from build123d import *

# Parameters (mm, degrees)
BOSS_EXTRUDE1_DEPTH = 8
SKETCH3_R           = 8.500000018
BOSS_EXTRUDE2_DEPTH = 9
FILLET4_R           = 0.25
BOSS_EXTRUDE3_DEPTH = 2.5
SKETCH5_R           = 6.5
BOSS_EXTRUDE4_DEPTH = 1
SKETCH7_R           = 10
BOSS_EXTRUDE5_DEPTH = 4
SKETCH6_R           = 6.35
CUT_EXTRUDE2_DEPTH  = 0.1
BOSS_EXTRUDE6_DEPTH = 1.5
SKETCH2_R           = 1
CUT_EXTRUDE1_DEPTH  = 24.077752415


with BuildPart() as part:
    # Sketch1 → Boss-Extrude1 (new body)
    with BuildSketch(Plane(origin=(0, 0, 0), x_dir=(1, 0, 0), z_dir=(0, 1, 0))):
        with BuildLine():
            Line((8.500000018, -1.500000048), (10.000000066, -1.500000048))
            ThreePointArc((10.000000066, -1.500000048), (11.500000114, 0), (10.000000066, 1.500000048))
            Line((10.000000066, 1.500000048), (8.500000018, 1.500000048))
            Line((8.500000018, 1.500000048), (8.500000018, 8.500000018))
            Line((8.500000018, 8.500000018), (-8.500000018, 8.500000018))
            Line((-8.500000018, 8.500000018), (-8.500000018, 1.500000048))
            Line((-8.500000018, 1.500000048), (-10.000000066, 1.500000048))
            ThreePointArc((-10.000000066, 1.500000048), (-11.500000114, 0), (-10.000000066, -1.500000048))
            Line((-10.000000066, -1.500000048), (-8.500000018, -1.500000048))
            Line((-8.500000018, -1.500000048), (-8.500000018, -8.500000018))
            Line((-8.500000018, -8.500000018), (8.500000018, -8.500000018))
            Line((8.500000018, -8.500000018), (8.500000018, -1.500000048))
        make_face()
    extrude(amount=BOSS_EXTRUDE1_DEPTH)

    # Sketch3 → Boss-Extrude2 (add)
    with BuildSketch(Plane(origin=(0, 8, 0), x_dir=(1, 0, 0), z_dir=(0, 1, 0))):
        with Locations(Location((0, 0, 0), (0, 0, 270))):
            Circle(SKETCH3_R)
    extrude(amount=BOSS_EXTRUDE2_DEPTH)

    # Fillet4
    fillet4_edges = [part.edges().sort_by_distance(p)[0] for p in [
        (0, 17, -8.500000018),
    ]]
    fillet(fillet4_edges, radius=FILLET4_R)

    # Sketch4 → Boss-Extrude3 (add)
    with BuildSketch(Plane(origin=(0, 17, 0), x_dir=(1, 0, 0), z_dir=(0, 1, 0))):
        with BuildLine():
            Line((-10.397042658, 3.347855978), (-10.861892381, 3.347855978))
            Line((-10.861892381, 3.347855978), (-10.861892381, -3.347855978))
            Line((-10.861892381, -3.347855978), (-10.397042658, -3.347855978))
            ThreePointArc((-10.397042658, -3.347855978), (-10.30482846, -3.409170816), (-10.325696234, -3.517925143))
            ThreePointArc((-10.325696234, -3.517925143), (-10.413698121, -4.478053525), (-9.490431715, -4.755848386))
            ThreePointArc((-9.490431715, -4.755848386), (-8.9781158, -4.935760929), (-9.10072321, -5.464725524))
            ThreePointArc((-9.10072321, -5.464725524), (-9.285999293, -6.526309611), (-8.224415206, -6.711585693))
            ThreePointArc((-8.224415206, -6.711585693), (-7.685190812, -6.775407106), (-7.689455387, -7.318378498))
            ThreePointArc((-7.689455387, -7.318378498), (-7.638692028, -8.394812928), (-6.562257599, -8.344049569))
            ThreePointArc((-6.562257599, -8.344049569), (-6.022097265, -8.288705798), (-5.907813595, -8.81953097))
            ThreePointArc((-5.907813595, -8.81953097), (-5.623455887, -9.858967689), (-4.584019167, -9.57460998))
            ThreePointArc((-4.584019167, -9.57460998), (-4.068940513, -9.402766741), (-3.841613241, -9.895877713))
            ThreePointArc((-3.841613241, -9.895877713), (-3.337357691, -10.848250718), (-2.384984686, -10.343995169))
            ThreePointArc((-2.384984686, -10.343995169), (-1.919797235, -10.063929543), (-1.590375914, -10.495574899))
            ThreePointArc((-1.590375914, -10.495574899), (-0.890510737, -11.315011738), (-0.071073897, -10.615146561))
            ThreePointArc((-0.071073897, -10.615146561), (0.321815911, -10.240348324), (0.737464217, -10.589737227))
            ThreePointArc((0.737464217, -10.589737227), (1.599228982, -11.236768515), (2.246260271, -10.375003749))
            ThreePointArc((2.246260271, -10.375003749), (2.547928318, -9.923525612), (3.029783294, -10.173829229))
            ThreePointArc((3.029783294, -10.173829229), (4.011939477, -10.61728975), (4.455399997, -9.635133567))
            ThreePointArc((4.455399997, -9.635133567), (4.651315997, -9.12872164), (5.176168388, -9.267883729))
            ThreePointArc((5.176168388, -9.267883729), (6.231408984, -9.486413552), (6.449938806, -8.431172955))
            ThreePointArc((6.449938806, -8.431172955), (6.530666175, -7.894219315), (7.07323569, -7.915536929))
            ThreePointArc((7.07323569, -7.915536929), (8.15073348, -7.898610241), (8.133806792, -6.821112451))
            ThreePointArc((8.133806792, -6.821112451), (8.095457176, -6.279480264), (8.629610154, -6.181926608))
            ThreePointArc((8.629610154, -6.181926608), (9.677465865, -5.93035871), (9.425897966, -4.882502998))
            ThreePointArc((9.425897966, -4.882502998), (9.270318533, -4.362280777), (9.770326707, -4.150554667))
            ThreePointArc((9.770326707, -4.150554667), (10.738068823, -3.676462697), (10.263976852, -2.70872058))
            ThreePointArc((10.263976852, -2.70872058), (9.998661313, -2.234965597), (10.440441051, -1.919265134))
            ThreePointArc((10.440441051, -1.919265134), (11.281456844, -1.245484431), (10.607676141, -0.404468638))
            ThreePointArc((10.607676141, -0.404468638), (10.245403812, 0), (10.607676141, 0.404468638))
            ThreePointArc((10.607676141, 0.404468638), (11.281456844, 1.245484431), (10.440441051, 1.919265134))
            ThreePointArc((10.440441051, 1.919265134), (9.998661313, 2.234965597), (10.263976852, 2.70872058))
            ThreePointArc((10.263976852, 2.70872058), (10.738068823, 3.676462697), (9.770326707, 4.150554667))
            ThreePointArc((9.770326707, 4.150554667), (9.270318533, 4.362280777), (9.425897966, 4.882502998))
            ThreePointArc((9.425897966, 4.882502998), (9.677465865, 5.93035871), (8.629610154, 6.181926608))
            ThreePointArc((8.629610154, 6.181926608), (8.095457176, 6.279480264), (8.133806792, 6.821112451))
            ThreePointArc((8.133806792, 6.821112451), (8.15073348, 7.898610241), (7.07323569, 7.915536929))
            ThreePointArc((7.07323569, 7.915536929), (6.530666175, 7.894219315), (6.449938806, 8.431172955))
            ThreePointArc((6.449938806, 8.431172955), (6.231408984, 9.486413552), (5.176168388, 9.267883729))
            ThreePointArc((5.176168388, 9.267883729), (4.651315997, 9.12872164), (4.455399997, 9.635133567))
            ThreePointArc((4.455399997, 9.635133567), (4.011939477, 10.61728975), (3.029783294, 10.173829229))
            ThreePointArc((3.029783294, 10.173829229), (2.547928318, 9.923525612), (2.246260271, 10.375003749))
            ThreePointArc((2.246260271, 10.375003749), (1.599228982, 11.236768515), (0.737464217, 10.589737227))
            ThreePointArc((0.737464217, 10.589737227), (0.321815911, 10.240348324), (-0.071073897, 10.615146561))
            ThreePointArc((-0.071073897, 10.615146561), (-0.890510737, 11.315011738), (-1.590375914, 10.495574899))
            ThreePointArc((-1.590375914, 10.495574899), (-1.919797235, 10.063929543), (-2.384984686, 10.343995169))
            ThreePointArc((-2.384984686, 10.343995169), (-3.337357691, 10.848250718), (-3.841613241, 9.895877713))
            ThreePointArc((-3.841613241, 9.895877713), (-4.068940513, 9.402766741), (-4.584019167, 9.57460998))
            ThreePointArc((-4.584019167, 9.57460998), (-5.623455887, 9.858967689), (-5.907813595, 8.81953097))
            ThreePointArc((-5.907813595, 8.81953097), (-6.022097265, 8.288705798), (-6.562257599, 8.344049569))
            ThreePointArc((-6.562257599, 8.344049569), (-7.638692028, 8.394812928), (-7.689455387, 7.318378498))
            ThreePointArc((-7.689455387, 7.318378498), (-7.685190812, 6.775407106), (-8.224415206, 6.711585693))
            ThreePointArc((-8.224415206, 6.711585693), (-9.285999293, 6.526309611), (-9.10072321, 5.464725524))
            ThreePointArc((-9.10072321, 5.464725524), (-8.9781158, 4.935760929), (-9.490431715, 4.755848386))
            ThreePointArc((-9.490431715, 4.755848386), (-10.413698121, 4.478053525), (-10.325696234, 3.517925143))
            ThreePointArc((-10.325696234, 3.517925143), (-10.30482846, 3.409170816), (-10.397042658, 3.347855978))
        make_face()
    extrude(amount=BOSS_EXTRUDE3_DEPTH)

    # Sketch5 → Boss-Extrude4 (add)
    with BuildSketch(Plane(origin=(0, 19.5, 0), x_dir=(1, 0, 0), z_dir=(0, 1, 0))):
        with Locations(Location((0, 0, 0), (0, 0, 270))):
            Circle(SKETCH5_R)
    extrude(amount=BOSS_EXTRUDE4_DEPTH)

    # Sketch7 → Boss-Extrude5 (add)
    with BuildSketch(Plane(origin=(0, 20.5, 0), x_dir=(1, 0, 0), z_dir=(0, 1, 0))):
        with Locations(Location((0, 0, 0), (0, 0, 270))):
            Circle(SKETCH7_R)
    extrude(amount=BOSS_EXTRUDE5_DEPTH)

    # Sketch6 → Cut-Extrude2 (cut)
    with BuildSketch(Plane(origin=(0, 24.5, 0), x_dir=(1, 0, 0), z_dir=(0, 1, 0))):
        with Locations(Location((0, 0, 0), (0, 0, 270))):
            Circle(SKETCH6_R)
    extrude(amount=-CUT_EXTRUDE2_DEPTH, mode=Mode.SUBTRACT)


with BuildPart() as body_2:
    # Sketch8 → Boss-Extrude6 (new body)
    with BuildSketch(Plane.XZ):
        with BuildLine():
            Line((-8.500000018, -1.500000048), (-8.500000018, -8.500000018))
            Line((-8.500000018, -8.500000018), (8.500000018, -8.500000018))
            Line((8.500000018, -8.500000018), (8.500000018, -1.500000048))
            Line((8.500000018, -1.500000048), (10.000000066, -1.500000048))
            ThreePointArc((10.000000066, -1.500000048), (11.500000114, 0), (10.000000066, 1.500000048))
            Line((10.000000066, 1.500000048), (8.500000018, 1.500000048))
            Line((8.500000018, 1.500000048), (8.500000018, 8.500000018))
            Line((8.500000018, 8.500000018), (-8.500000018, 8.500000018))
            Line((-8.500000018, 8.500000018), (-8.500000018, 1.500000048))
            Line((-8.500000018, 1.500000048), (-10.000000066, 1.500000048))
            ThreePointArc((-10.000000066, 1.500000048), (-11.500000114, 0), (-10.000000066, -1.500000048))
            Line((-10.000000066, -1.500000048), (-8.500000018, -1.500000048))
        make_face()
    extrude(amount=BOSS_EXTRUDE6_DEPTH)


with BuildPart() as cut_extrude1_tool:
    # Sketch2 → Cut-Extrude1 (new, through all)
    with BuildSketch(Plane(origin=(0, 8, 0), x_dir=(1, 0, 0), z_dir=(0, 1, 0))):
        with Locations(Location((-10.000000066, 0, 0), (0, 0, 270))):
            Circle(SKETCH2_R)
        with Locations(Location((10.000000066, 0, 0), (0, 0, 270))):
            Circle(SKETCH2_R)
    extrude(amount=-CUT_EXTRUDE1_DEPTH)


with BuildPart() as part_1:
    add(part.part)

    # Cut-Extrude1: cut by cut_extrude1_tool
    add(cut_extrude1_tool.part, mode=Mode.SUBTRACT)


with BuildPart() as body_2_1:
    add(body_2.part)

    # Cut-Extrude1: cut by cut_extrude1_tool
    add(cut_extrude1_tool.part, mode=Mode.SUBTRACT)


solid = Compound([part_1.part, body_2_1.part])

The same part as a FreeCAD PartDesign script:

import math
import FreeCAD as App
import Part
import Sketcher
from FreeCAD import Vector
Q = App.Units.Quantity


def edges_at(feature, points):
    """Names of the edges that pass closest to the given points."""
    edges = feature.Shape.Edges
    near = lambda p: min(range(len(edges)), key=lambda i: edges[i].distToShape(Part.Vertex(*p))[0])
    return sorted({f"Edge{near(p) + 1}" for p in points})

doc = App.newDocument("Part")
body = doc.addObject("PartDesign::Body", "Body")

sketch1 = body.newObject("Sketcher::SketchObject", "Sketch")
sketch1.AttachmentSupport = (doc.getObject("XZ_Plane"), [""])
sketch1.MapMode = "FlatFace"
sketch1.addGeometry(Part.LineSegment(Vector(8.5, 1.5, 0), Vector(10, 1.5, 0)), False)
sketch1.addGeometry(Part.ArcOfCircle(Part.Circle(Vector(10, 0, 0), Vector(0, 0, 1), 1.5), math.radians(-90), math.radians(90)), False)
sketch1.addGeometry(Part.LineSegment(Vector(10, -1.5, 0), Vector(8.5, -1.5, 0)), False)
sketch1.addGeometry(Part.LineSegment(Vector(8.5, -1.5, 0), Vector(8.5, -8.5, 0)), False)
sketch1.addGeometry(Part.LineSegment(Vector(8.5, -8.5, 0), Vector(-8.5, -8.5, 0)), False)
sketch1.addGeometry(Part.LineSegment(Vector(-8.5, -8.5, 0), Vector(-8.5, -1.5, 0)), False)
sketch1.addGeometry(Part.LineSegment(Vector(-8.5, -1.5, 0), Vector(-10, -1.5, 0)), False)
sketch1.addGeometry(Part.ArcOfCircle(Part.Circle(Vector(-10, 0, 0), Vector(0, 0, 1), 1.5), math.radians(90), math.radians(270)), False)
sketch1.addGeometry(Part.LineSegment(Vector(-10, 1.5, 0), Vector(-8.5, 1.5, 0)), False)
sketch1.addGeometry(Part.LineSegment(Vector(-8.5, 1.5, 0), Vector(-8.5, 8.5, 0)), False)
sketch1.addGeometry(Part.LineSegment(Vector(-8.5, 8.5, 0), Vector(8.5, 8.5, 0)), False)
sketch1.addGeometry(Part.LineSegment(Vector(8.5, 8.5, 0), Vector(8.5, 1.5, 0)), False)
sketch1.addConstraint(Sketcher.Constraint("Tangent", 0, 2, 1, 2))
sketch1.addConstraint(Sketcher.Constraint("Tangent", 1, 1, 2, 1))
sketch1.addConstraint(Sketcher.Constraint("Coincident", 2, 2, 3, 1))
sketch1.addConstraint(Sketcher.Constraint("Coincident", 3, 2, 4, 1))
sketch1.addConstraint(Sketcher.Constraint("Coincident", 4, 2, 5, 1))
sketch1.addConstraint(Sketcher.Constraint("Coincident", 5, 2, 6, 1))
sketch1.addConstraint(Sketcher.Constraint("Tangent", 6, 2, 7, 2))
sketch1.addConstraint(Sketcher.Constraint("Tangent", 7, 1, 8, 1))
sketch1.addConstraint(Sketcher.Constraint("Coincident", 8, 2, 9, 1))
sketch1.addConstraint(Sketcher.Constraint("Coincident", 9, 2, 10, 1))
sketch1.addConstraint(Sketcher.Constraint("Coincident", 10, 2, 11, 1))
sketch1.addConstraint(Sketcher.Constraint("Coincident", 11, 2, 0, 1))
sketch1.addConstraint(Sketcher.Constraint("Horizontal", 0))
sketch1.addConstraint(Sketcher.Constraint("Horizontal", 2))
sketch1.addConstraint(Sketcher.Constraint("Vertical", 3))
sketch1.addConstraint(Sketcher.Constraint("Horizontal", 4))
sketch1.addConstraint(Sketcher.Constraint("Vertical", 5))
sketch1.addConstraint(Sketcher.Constraint("Horizontal", 6))
sketch1.addConstraint(Sketcher.Constraint("Horizontal", 8))
sketch1.addConstraint(Sketcher.Constraint("Vertical", 9))
sketch1.addConstraint(Sketcher.Constraint("Horizontal", 10))
sketch1.addConstraint(Sketcher.Constraint("Vertical", 11))
sketch1.addConstraint(Sketcher.Constraint("Equal", 1, 7))
sketch1.addConstraint(Sketcher.Constraint("Symmetric", 1, 3, 7, 3, -1, 1))
sketch1.addConstraint(Sketcher.Constraint("Symmetric", 3, 2, 9, 2, -1, 1))
sketch1.addConstraint(Sketcher.Constraint("Symmetric", 2, 2, 5, 2, -2))
sketch1.addConstraint(Sketcher.Constraint("Vertical", 3, 2, 10, 2))
sketch1.addConstraint(Sketcher.Constraint("Radius", 1, Q("1.5 mm")))
sketch1.addConstraint(Sketcher.Constraint("DistanceX", 4, 2, 4, 1, Q("17 mm")))
sketch1.addConstraint(Sketcher.Constraint("DistanceY", 3, 2, 3, 1, Q("7 mm")))
sketch1.addConstraint(Sketcher.Constraint("DistanceX", 0, 1, 0, 2, Q("1.5 mm")))
pad1 = body.newObject("PartDesign::Pad", "Pad")
pad1.Profile = sketch1
pad1.Length = 8
pad1.Reversed = True

sketch2 = body.newObject("Sketcher::SketchObject", "Sketch001")
sketch2.AttachmentSupport = (doc.getObject("XZ_Plane"), [""])
sketch2.MapMode = "FlatFace"
sketch2.AttachmentOffset = App.Placement(Vector(0, 0, -8), App.Rotation())
sketch2.addGeometry(Part.Circle(Vector(0, 0, 0), Vector(0, 0, 1), 9), False)
sketch2.addConstraint(Sketcher.Constraint("Coincident", 0, 3, -1, 1))
sketch2.addConstraint(Sketcher.Constraint("Diameter", 0, Q("17 mm")))
pad2 = body.newObject("PartDesign::Pad", "Pad001")
pad2.Profile = sketch2
pad2.Length = 9
pad2.Reversed = True
doc.recompute()

fillet = body.newObject("PartDesign::Fillet", "Fillet")
fillet.Base = (pad2, edges_at(pad2, [(0, 17, -8.5)]))
fillet.Radius = 0.25

sketch3 = body.newObject("Sketcher::SketchObject", "Sketch002")
sketch3.AttachmentSupport = (doc.getObject("XZ_Plane"), [""])
sketch3.MapMode = "FlatFace"
sketch3.AttachmentOffset = App.Placement(Vector(0, 0, -17), App.Rotation())
sketch3.addGeometry(Part.LineSegment(Vector(-10.4, -3.35, 0), Vector(-10.86, -3.35, 0)), False)
sketch3.addGeometry(Part.LineSegment(Vector(-10.86, -3.35, 0), Vector(-10.86, 3.35, 0)), False)
sketch3.addGeometry(Part.LineSegment(Vector(-10.86, 3.35, 0), Vector(-10.4, 3.35, 0)), False)
sketch3.addGeometry(Part.ArcOfCircle(Part.Circle(Vector(-10.4, 3.45, 0), Vector(0, 0, 1), 0.1), math.radians(-90), math.radians(44)), False)
sketch3.addGeometry(Part.ArcOfCircle(Part.Circle(Vector(-9.78, 4.05, 0), Vector(0, 0, 1), 0.76), math.radians(67), math.radians(224)), False)
sketch3.addGeometry(Part.ArcOfCircle(Part.Circle(Vector(-9.33, 5.13, 0), Vector(0, 0, 1), 0.41), math.radians(-113), math.radians(55)), False)
sketch3.addGeometry(Part.ArcOfCircle(Part.Circle(Vector(-8.66, 6.09, 0), Vector(0, 0, 1), 0.76), math.radians(55), math.radians(235)), False)
sketch3.addGeometry(Part.ArcOfCircle(Part.Circle(Vector(-7.99, 7.04, 0), Vector(0, 0, 1), 0.41), math.radians(-125), math.radians(42)), False)
sketch3.addGeometry(Part.ArcOfCircle(Part.Circle(Vector(-7.13, 7.83, 0), Vector(0, 0, 1), 0.76), math.radians(42), math.radians(222)), False)
sketch3.addGeometry(Part.ArcOfCircle(Part.Circle(Vector(-6.26, 8.62, 0), Vector(0, 0, 1), 0.41), math.radians(-138), math.radians(30)), False)
sketch3.addGeometry(Part.ArcOfCircle(Part.Circle(Vector(-5.25, 9.2, 0), Vector(0, 0, 1), 0.76), math.radians(30), math.radians(210)), False)
sketch3.addGeometry(Part.ArcOfCircle(Part.Circle(Vector(-4.23, 9.78, 0), Vector(0, 0, 1), 0.41), math.radians(-150), math.radians(17)), False)
sketch3.addGeometry(Part.ArcOfCircle(Part.Circle(Vector(-3.11, 10.12, 0), Vector(0, 0, 1), 0.76), math.radians(17), math.radians(197)), False)
sketch3.addGeometry(Part.ArcOfCircle(Part.Circle(Vector(-2, 10.46, 0), Vector(0, 0, 1), 0.41), math.radians(-163), math.radians(5)), False)
sketch3.addGeometry(Part.ArcOfCircle(Part.Circle(Vector(-0.83, 10.56, 0), Vector(0, 0, 1), 0.76), math.radians(5), math.radians(185)), False)
sketch3.addGeometry(Part.ArcOfCircle(Part.Circle(Vector(0.33, 10.65, 0), Vector(0, 0, 1), 0.41), math.radians(-176), math.radians(-8)), False)
sketch3.addGeometry(Part.ArcOfCircle(Part.Circle(Vector(1.49, 10.48, 0), Vector(0, 0, 1), 0.76), math.radians(-8), math.radians(172)), False)
sketch3.addGeometry(Part.ArcOfCircle(Part.Circle(Vector(2.65, 10.32, 0), Vector(0, 0, 1), 0.41), math.radians(172), math.radians(339)), False)
sketch3.addGeometry(Part.ArcOfCircle(Part.Circle(Vector(3.74, 9.9, 0), Vector(0, 0, 1), 0.76), math.radians(-21), math.radians(159)), False)
sketch3.addGeometry(Part.ArcOfCircle(Part.Circle(Vector(4.84, 9.49, 0), Vector(0, 0, 1), 0.41), math.radians(159), math.radians(327)), False)
sketch3.addGeometry(Part.ArcOfCircle(Part.Circle(Vector(5.81, 8.85, 0), Vector(0, 0, 1), 0.76), math.radians(-33), math.radians(147)), False)
sketch3.addGeometry(Part.ArcOfCircle(Part.Circle(Vector(6.79, 8.21, 0), Vector(0, 0, 1), 0.41), math.radians(147), math.radians(314)), False)
sketch3.addGeometry(Part.ArcOfCircle(Part.Circle(Vector(7.6, 7.37, 0), Vector(0, 0, 1), 0.76), math.radians(-46), math.radians(134)), False)
sketch3.addGeometry(Part.ArcOfCircle(Part.Circle(Vector(8.42, 6.53, 0), Vector(0, 0, 1), 0.41), math.radians(134), math.radians(301)), False)
sketch3.addGeometry(Part.ArcOfCircle(Part.Circle(Vector(9.03, 5.53, 0), Vector(0, 0, 1), 0.76), math.radians(-59), math.radians(121)), False)
sketch3.addGeometry(Part.ArcOfCircle(Part.Circle(Vector(9.64, 4.54, 0), Vector(0, 0, 1), 0.41), math.radians(122), math.radians(289)), False)
sketch3.addGeometry(Part.ArcOfCircle(Part.Circle(Vector(10.02, 3.43, 0), Vector(0, 0, 1), 0.76), math.radians(-71), math.radians(109)), False)
sketch3.addGeometry(Part.ArcOfCircle(Part.Circle(Vector(10.4, 2.32, 0), Vector(0, 0, 1), 0.41), math.radians(109), math.radians(276)), False)
sketch3.addGeometry(Part.ArcOfCircle(Part.Circle(Vector(10.52, 1.16, 0), Vector(0, 0, 1), 0.76), math.radians(-84), math.radians(96)), False)
sketch3.addGeometry(Part.ArcOfCircle(Part.Circle(Vector(10.65, 0, 0), Vector(0, 0, 1), 0.41), math.radians(96), math.radians(264)), False)
sketch3.addGeometry(Part.ArcOfCircle(Part.Circle(Vector(10.52, -1.16, 0), Vector(0, 0, 1), 0.76), math.radians(-96), math.radians(84)), False)
sketch3.addGeometry(Part.ArcOfCircle(Part.Circle(Vector(10.4, -2.32, 0), Vector(0, 0, 1), 0.41), math.radians(84), math.radians(251)), False)
sketch3.addGeometry(Part.ArcOfCircle(Part.Circle(Vector(10.02, -3.43, 0), Vector(0, 0, 1), 0.76), math.radians(-109), math.radians(71)), False)
sketch3.addGeometry(Part.ArcOfCircle(Part.Circle(Vector(9.64, -4.54, 0), Vector(0, 0, 1), 0.41), math.radians(71), math.radians(238)), False)
sketch3.addGeometry(Part.ArcOfCircle(Part.Circle(Vector(9.03, -5.53, 0), Vector(0, 0, 1), 0.76), math.radians(-121), math.radians(59)), False)
sketch3.addGeometry(Part.ArcOfCircle(Part.Circle(Vector(8.42, -6.53, 0), Vector(0, 0, 1), 0.41), math.radians(59), math.radians(226)), False)
sketch3.addGeometry(Part.ArcOfCircle(Part.Circle(Vector(7.6, -7.37, 0), Vector(0, 0, 1), 0.76), math.radians(-134), math.radians(46)), False)
sketch3.addGeometry(Part.ArcOfCircle(Part.Circle(Vector(6.79, -8.21, 0), Vector(0, 0, 1), 0.41), math.radians(46), math.radians(213)), False)
sketch3.addGeometry(Part.ArcOfCircle(Part.Circle(Vector(5.81, -8.85, 0), Vector(0, 0, 1), 0.76), math.radians(-147), math.radians(33)), False)
sketch3.addGeometry(Part.ArcOfCircle(Part.Circle(Vector(4.84, -9.49, 0), Vector(0, 0, 1), 0.41), math.radians(33), math.radians(201)), False)
sketch3.addGeometry(Part.ArcOfCircle(Part.Circle(Vector(3.74, -9.9, 0), Vector(0, 0, 1), 0.76), math.radians(-159), math.radians(21)), False)
sketch3.addGeometry(Part.ArcOfCircle(Part.Circle(Vector(2.65, -10.32, 0), Vector(0, 0, 1), 0.41), math.radians(21), math.radians(188)), False)
sketch3.addGeometry(Part.ArcOfCircle(Part.Circle(Vector(1.49, -10.48, 0), Vector(0, 0, 1), 0.76), math.radians(-172), math.radians(8)), False)
sketch3.addGeometry(Part.ArcOfCircle(Part.Circle(Vector(0.33, -10.65, 0), Vector(0, 0, 1), 0.41), math.radians(8), math.radians(176)), False)
sketch3.addGeometry(Part.ArcOfCircle(Part.Circle(Vector(-0.83, -10.56, 0), Vector(0, 0, 1), 0.76), math.radians(175), math.radians(355)), False)
sketch3.addGeometry(Part.ArcOfCircle(Part.Circle(Vector(-2, -10.46, 0), Vector(0, 0, 1), 0.41), math.radians(-5), math.radians(163)), False)
sketch3.addGeometry(Part.ArcOfCircle(Part.Circle(Vector(-3.11, -10.12, 0), Vector(0, 0, 1), 0.76), math.radians(163), math.radians(343)), False)
sketch3.addGeometry(Part.ArcOfCircle(Part.Circle(Vector(-4.23, -9.78, 0), Vector(0, 0, 1), 0.41), math.radians(-17), math.radians(150)), False)
sketch3.addGeometry(Part.ArcOfCircle(Part.Circle(Vector(-5.25, -9.2, 0), Vector(0, 0, 1), 0.76), math.radians(150), math.radians(330)), False)
sketch3.addGeometry(Part.ArcOfCircle(Part.Circle(Vector(-6.26, -8.62, 0), Vector(0, 0, 1), 0.41), math.radians(-30), math.radians(138)), False)
sketch3.addGeometry(Part.ArcOfCircle(Part.Circle(Vector(-7.13, -7.83, 0), Vector(0, 0, 1), 0.76), math.radians(138), math.radians(318)), False)
sketch3.addGeometry(Part.ArcOfCircle(Part.Circle(Vector(-7.99, -7.04, 0), Vector(0, 0, 1), 0.41), math.radians(-42), math.radians(125)), False)
sketch3.addGeometry(Part.ArcOfCircle(Part.Circle(Vector(-8.66, -6.09, 0), Vector(0, 0, 1), 0.76), math.radians(125), math.radians(305)), False)
sketch3.addGeometry(Part.ArcOfCircle(Part.Circle(Vector(-9.33, -5.13, 0), Vector(0, 0, 1), 0.41), math.radians(-55), math.radians(113)), False)
sketch3.addGeometry(Part.ArcOfCircle(Part.Circle(Vector(-9.78, -4.05, 0), Vector(0, 0, 1), 0.76), math.radians(136), math.radians(293)), False)
sketch3.addGeometry(Part.ArcOfCircle(Part.Circle(Vector(-10.4, -3.45, 0), Vector(0, 0, 1), 0.1), math.radians(-44), math.radians(90)), False)
sketch3.addConstraint(Sketcher.Constraint("Coincident", 0, 2, 1, 1))
sketch3.addConstraint(Sketcher.Constraint("Coincident", 1, 2, 2, 1))
sketch3.addConstraint(Sketcher.Constraint("Tangent", 2, 2, 3, 1))
sketch3.addConstraint(Sketcher.Constraint("Tangent", 3, 2, 4, 2))
sketch3.addConstraint(Sketcher.Constraint("Tangent", 4, 1, 5, 1))
sketch3.addConstraint(Sketcher.Constraint("Tangent", 5, 2, 6, 2))
sketch3.addConstraint(Sketcher.Constraint("Tangent", 6, 1, 7, 1))
sketch3.addConstraint(Sketcher.Constraint("Tangent", 7, 2, 8, 2))
sketch3.addConstraint(Sketcher.Constraint("Tangent", 8, 1, 9, 1))
sketch3.addConstraint(Sketcher.Constraint("Tangent", 9, 2, 10, 2))
sketch3.addConstraint(Sketcher.Constraint("Tangent", 10, 1, 11, 1))
sketch3.addConstraint(Sketcher.Constraint("Tangent", 11, 2, 12, 2))
sketch3.addConstraint(Sketcher.Constraint("Tangent", 12, 1, 13, 1))
sketch3.addConstraint(Sketcher.Constraint("Tangent", 13, 2, 14, 2))
sketch3.addConstraint(Sketcher.Constraint("Tangent", 14, 1, 15, 1))
sketch3.addConstraint(Sketcher.Constraint("Tangent", 15, 2, 16, 2))
sketch3.addConstraint(Sketcher.Constraint("Tangent", 16, 1, 17, 1))
sketch3.addConstraint(Sketcher.Constraint("Tangent", 17, 2, 18, 2))
sketch3.addConstraint(Sketcher.Constraint("Tangent", 18, 1, 19, 1))
sketch3.addConstraint(Sketcher.Constraint("Tangent", 19, 2, 20, 2))
sketch3.addConstraint(Sketcher.Constraint("Tangent", 20, 1, 21, 1))
sketch3.addConstraint(Sketcher.Constraint("Tangent", 21, 2, 22, 2))
sketch3.addConstraint(Sketcher.Constraint("Tangent", 22, 1, 23, 1))
sketch3.addConstraint(Sketcher.Constraint("Tangent", 23, 2, 24, 2))
sketch3.addConstraint(Sketcher.Constraint("Tangent", 24, 1, 25, 1))
sketch3.addConstraint(Sketcher.Constraint("Tangent", 25, 2, 26, 2))
sketch3.addConstraint(Sketcher.Constraint("Tangent", 26, 1, 27, 1))
sketch3.addConstraint(Sketcher.Constraint("Tangent", 27, 2, 28, 2))
sketch3.addConstraint(Sketcher.Constraint("Tangent", 28, 1, 29, 1))
sketch3.addConstraint(Sketcher.Constraint("Tangent", 29, 2, 30, 2))
sketch3.addConstraint(Sketcher.Constraint("Tangent", 30, 1, 31, 1))
sketch3.addConstraint(Sketcher.Constraint("Tangent", 31, 2, 32, 2))
sketch3.addConstraint(Sketcher.Constraint("Tangent", 32, 1, 33, 1))
sketch3.addConstraint(Sketcher.Constraint("Tangent", 33, 2, 34, 2))
sketch3.addConstraint(Sketcher.Constraint("Tangent", 34, 1, 35, 1))
sketch3.addConstraint(Sketcher.Constraint("Tangent", 35, 2, 36, 2))
sketch3.addConstraint(Sketcher.Constraint("Tangent", 36, 1, 37, 1))
sketch3.addConstraint(Sketcher.Constraint("Tangent", 37, 2, 38, 2))
sketch3.addConstraint(Sketcher.Constraint("Tangent", 38, 1, 39, 1))
sketch3.addConstraint(Sketcher.Constraint("Tangent", 39, 2, 40, 2))
sketch3.addConstraint(Sketcher.Constraint("Tangent", 40, 1, 41, 1))
sketch3.addConstraint(Sketcher.Constraint("Tangent", 41, 2, 42, 2))
sketch3.addConstraint(Sketcher.Constraint("Tangent", 42, 1, 43, 1))
sketch3.addConstraint(Sketcher.Constraint("Tangent", 43, 2, 44, 2))
sketch3.addConstraint(Sketcher.Constraint("Tangent", 44, 1, 45, 1))
sketch3.addConstraint(Sketcher.Constraint("Tangent", 45, 2, 46, 2))
sketch3.addConstraint(Sketcher.Constraint("Tangent", 46, 1, 47, 1))
sketch3.addConstraint(Sketcher.Constraint("Tangent", 47, 2, 48, 2))
sketch3.addConstraint(Sketcher.Constraint("Tangent", 48, 1, 49, 1))
sketch3.addConstraint(Sketcher.Constraint("Tangent", 49, 2, 50, 2))
sketch3.addConstraint(Sketcher.Constraint("Tangent", 50, 1, 51, 1))
sketch3.addConstraint(Sketcher.Constraint("Tangent", 51, 2, 52, 2))
sketch3.addConstraint(Sketcher.Constraint("Tangent", 52, 1, 53, 1))
sketch3.addConstraint(Sketcher.Constraint("Tangent", 53, 2, 54, 2))
sketch3.addConstraint(Sketcher.Constraint("Tangent", 54, 1, 55, 1))
sketch3.addConstraint(Sketcher.Constraint("Tangent", 55, 2, 0, 1))
sketch3.addConstraint(Sketcher.Constraint("Horizontal", 0))
sketch3.addConstraint(Sketcher.Constraint("Vertical", 1))
sketch3.addConstraint(Sketcher.Constraint("Horizontal", 2))
sketch3.addConstraint(Sketcher.Constraint("Equal", 4, 6))
sketch3.addConstraint(Sketcher.Constraint("Equal", 5, 7))
sketch3.addConstraint(Sketcher.Constraint("Equal", 6, 8))
sketch3.addConstraint(Sketcher.Constraint("Equal", 7, 9))
sketch3.addConstraint(Sketcher.Constraint("Equal", 8, 10))
sketch3.addConstraint(Sketcher.Constraint("Equal", 9, 11))
sketch3.addConstraint(Sketcher.Constraint("Equal", 10, 12))
sketch3.addConstraint(Sketcher.Constraint("Equal", 11, 13))
sketch3.addConstraint(Sketcher.Constraint("Equal", 12, 14))
sketch3.addConstraint(Sketcher.Constraint("Equal", 13, 15))
sketch3.addConstraint(Sketcher.Constraint("Equal", 14, 16))
sketch3.addConstraint(Sketcher.Constraint("Equal", 15, 17))
sketch3.addConstraint(Sketcher.Constraint("Equal", 16, 18))
sketch3.addConstraint(Sketcher.Constraint("Equal", 17, 19))
sketch3.addConstraint(Sketcher.Constraint("Equal", 18, 20))
sketch3.addConstraint(Sketcher.Constraint("Equal", 19, 21))
sketch3.addConstraint(Sketcher.Constraint("Equal", 20, 22))
sketch3.addConstraint(Sketcher.Constraint("Equal", 21, 23))
sketch3.addConstraint(Sketcher.Constraint("Equal", 22, 24))
sketch3.addConstraint(Sketcher.Constraint("Equal", 23, 25))
sketch3.addConstraint(Sketcher.Constraint("Equal", 24, 26))
sketch3.addConstraint(Sketcher.Constraint("Equal", 25, 27))
sketch3.addConstraint(Sketcher.Constraint("Equal", 26, 28))
sketch3.addConstraint(Sketcher.Constraint("Equal", 27, 29))
sketch3.addConstraint(Sketcher.Constraint("Equal", 28, 30))
sketch3.addConstraint(Sketcher.Constraint("Equal", 29, 31))
sketch3.addConstraint(Sketcher.Constraint("Equal", 30, 32))
sketch3.addConstraint(Sketcher.Constraint("Equal", 31, 33))
sketch3.addConstraint(Sketcher.Constraint("Equal", 32, 34))
sketch3.addConstraint(Sketcher.Constraint("Equal", 33, 35))
sketch3.addConstraint(Sketcher.Constraint("Equal", 34, 36))
sketch3.addConstraint(Sketcher.Constraint("Equal", 35, 37))
sketch3.addConstraint(Sketcher.Constraint("Equal", 36, 38))
sketch3.addConstraint(Sketcher.Constraint("Equal", 37, 39))
sketch3.addConstraint(Sketcher.Constraint("Equal", 38, 40))
sketch3.addConstraint(Sketcher.Constraint("Equal", 39, 41))
sketch3.addConstraint(Sketcher.Constraint("Equal", 40, 42))
sketch3.addConstraint(Sketcher.Constraint("Equal", 41, 43))
sketch3.addConstraint(Sketcher.Constraint("Equal", 42, 44))
sketch3.addConstraint(Sketcher.Constraint("Equal", 43, 45))
sketch3.addConstraint(Sketcher.Constraint("Equal", 44, 46))
sketch3.addConstraint(Sketcher.Constraint("Equal", 45, 47))
sketch3.addConstraint(Sketcher.Constraint("Equal", 46, 48))
sketch3.addConstraint(Sketcher.Constraint("Equal", 47, 49))
sketch3.addConstraint(Sketcher.Constraint("Equal", 48, 50))
sketch3.addConstraint(Sketcher.Constraint("Equal", 49, 51))
sketch3.addConstraint(Sketcher.Constraint("Equal", 50, 52))
sketch3.addConstraint(Sketcher.Constraint("Equal", 51, 53))
sketch3.addConstraint(Sketcher.Constraint("Equal", 52, 54))
sketch3.addConstraint(Sketcher.Constraint("Equal", 3, 55))
sketch3.addConstraint(Sketcher.Constraint("Symmetric", 28, 3, 30, 3, -1))
sketch3.addConstraint(Sketcher.Constraint("Symmetric", 26, 3, 32, 3, -1))
sketch3.addConstraint(Sketcher.Constraint("Symmetric", 24, 3, 34, 3, -1))
sketch3.addConstraint(Sketcher.Constraint("Symmetric", 22, 3, 36, 3, -1))
sketch3.addConstraint(Sketcher.Constraint("Symmetric", 20, 3, 38, 3, -1))
sketch3.addConstraint(Sketcher.Constraint("Symmetric", 18, 3, 40, 3, -1))
sketch3.addConstraint(Sketcher.Constraint("Symmetric", 16, 3, 42, 3, -1))
sketch3.addConstraint(Sketcher.Constraint("Symmetric", 14, 3, 44, 3, -1))
sketch3.addConstraint(Sketcher.Constraint("Symmetric", 12, 3, 46, 3, -1))
sketch3.addConstraint(Sketcher.Constraint("Symmetric", 10, 3, 48, 3, -1))
sketch3.addConstraint(Sketcher.Constraint("Symmetric", 8, 3, 50, 3, -1))
sketch3.addConstraint(Sketcher.Constraint("Symmetric", 6, 3, 52, 3, -1))
sketch3.addConstraint(Sketcher.Constraint("Symmetric", 4, 3, 54, 3, -1))
sketch3.addConstraint(Sketcher.Constraint("Vertical", 3, 3, 55, 3))
sketch3.addConstraint(Sketcher.Constraint("Radius", 3, Q("0.1 mm")))
sketch3.addConstraint(Sketcher.Constraint("Radius", 4, Q("0.762 mm")))
sketch3.addConstraint(Sketcher.Constraint("Radius", 5, Q("0.406926 mm")))
sketch3.addConstraint(Sketcher.Constraint("DistanceX", 0, 2, 0, 1, Q("0.46485 mm")))
sketch3.addConstraint(Sketcher.Constraint("DistanceY", 1, 1, 1, 2, Q("6.695712 mm")))
sketch3.addConstraint(Sketcher.Constraint("DistanceY", -1, 1, 5, 3, Q("5.131799 mm")))
sketch3.addConstraint(Sketcher.Constraint("DistanceX", 12, 3, -1, 1, Q("3.113299 mm")))
sketch3.addConstraint(Sketcher.Constraint("DistanceX", -1, 1, 18, 1, Q("4.4554 mm")))
sketch3.addConstraint(Sketcher.Constraint("DistanceX", 6, 3, -1, 1, Q("8.662569 mm")))
sketch3.addConstraint(Sketcher.Constraint("DistanceX", 7, 3, -1, 1, Q("7.990431 mm")))
sketch3.addConstraint(Sketcher.Constraint("DistanceY", -1, 1, 10, 3, Q("9.19707 mm")))
sketch3.addConstraint(Sketcher.Constraint("DistanceX", 11, 3, -1, 1, Q("4.23055 mm")))
sketch3.addConstraint(Sketcher.Constraint("DistanceY", -1, 1, 14, 3, Q("10.555361 mm")))
sketch3.addConstraint(Sketcher.Constraint("DistanceY", -1, 1, 16, 3, Q("10.48237 mm")))
sketch3.addConstraint(Sketcher.Constraint("DistanceX", -1, 1, 18, 3, Q("3.742592 mm")))
sketch3.addConstraint(Sketcher.Constraint("DistanceY", -1, 1, 18, 3, Q("9.904481 mm")))
sketch3.addConstraint(Sketcher.Constraint("DistanceY", -1, 1, 20, 3, Q("8.849528 mm")))
sketch3.addConstraint(Sketcher.Constraint("DistanceX", -1, 1, 21, 3, Q("6.790051 mm")))
sketch3.addConstraint(Sketcher.Constraint("DistanceX", -1, 1, 22, 3, Q("7.603521 mm")))
sketch3.addConstraint(Sketcher.Constraint("DistanceX", -1, 1, 23, 3, Q("8.416992 mm")))
sketch3.addConstraint(Sketcher.Constraint("DistanceY", -1, 1, 25, 3, Q("4.535541 mm")))
sketch3.addConstraint(Sketcher.Constraint("DistanceX", -1, 1, 26, 3, Q("10.017152 mm")))
sketch3.addConstraint(Sketcher.Constraint("DistanceX", -1, 1, 28, 3, Q("10.524059 mm")))
sketch3.addConstraint(Sketcher.Constraint("DistanceX", -1, 1, 29, 3, Q("10.65233 mm")))
sketch3.addConstraint(Sketcher.Constraint("DistanceX", 4, 1, -1, 1, Q("9.490432 mm")))
sketch3.addConstraint(Sketcher.Constraint("DistanceY", -1, 1, 4, 1, Q("4.755848 mm")))
sketch3.addConstraint(Sketcher.Constraint("DistanceY", -1, 1, 7, 2, Q("7.318378 mm")))
sketch3.addConstraint(Sketcher.Constraint("DistanceY", -1, 1, 8, 1, Q("8.34405 mm")))
sketch3.addConstraint(Sketcher.Constraint("DistanceX", -1, 1, 16, 1, Q("2.24626 mm")))
sketch3.addConstraint(Sketcher.Constraint("DistanceX", -1, 1, 23, 2, Q("8.62961 mm")))
sketch3.addConstraint(Sketcher.Constraint("DistanceX", 13, 3, -1, 1, Q("1.996048 mm")))
pad3 = body.newObject("PartDesign::Pad", "Pad002")
pad3.Profile = sketch3
pad3.Length = 2.5
pad3.Reversed = True

sketch4 = body.newObject("Sketcher::SketchObject", "Sketch003")
sketch4.AttachmentSupport = (doc.getObject("XZ_Plane"), [""])
sketch4.MapMode = "FlatFace"
sketch4.AttachmentOffset = App.Placement(Vector(0, 0, -19.5), App.Rotation())
sketch4.addGeometry(Part.Circle(Vector(0, 0, 0), Vector(0, 0, 1), 6), False)
sketch4.addConstraint(Sketcher.Constraint("Coincident", 0, 3, -1, 1))
sketch4.addConstraint(Sketcher.Constraint("Diameter", 0, Q("13 mm")))
pad4 = body.newObject("PartDesign::Pad", "Pad003")
pad4.Profile = sketch4
pad4.Length = 1
pad4.Reversed = True

sketch5 = body.newObject("Sketcher::SketchObject", "Sketch004")
sketch5.AttachmentSupport = (doc.getObject("XZ_Plane"), [""])
sketch5.MapMode = "FlatFace"
sketch5.AttachmentOffset = App.Placement(Vector(0, 0, -20.5), App.Rotation())
sketch5.addGeometry(Part.Circle(Vector(0, 0, 0), Vector(0, 0, 1), 10), False)
sketch5.addConstraint(Sketcher.Constraint("Coincident", 0, 3, -1, 1))
sketch5.addConstraint(Sketcher.Constraint("Diameter", 0, Q("20 mm")))
pad5 = body.newObject("PartDesign::Pad", "Pad004")
pad5.Profile = sketch5
pad5.Length = 4
pad5.Reversed = True

sketch6 = body.newObject("Sketcher::SketchObject", "Sketch005")
sketch6.AttachmentSupport = (doc.getObject("XZ_Plane"), [""])
sketch6.MapMode = "FlatFace"
sketch6.AttachmentOffset = App.Placement(Vector(0, 0, -24.5), App.Rotation())
sketch6.addGeometry(Part.Circle(Vector(0, 0, 0), Vector(0, 0, 1), 6), False)
sketch6.addConstraint(Sketcher.Constraint("Coincident", 0, 3, -1, 1))
sketch6.addConstraint(Sketcher.Constraint("Diameter", 0, Q("12.7 mm")))
pocket1 = body.newObject("PartDesign::Pocket", "Pocket")
pocket1.Profile = sketch6
pocket1.Length = 0.1
pocket1.Reversed = True
body2 = doc.addObject("PartDesign::Body", "Body001")

sketch7 = body2.newObject("Sketcher::SketchObject", "Sketch006")
sketch7.AttachmentSupport = (doc.getObject("XZ_Plane001"), [""])
sketch7.MapMode = "FlatFace"
sketch7.addGeometry(Part.LineSegment(Vector(-8.5, -1.5, 0), Vector(-8.5, -8.5, 0)), False)
sketch7.addGeometry(Part.LineSegment(Vector(-8.5, -8.5, 0), Vector(8.5, -8.5, 0)), False)
sketch7.addGeometry(Part.LineSegment(Vector(8.5, -8.5, 0), Vector(8.5, -1.5, 0)), False)
sketch7.addGeometry(Part.LineSegment(Vector(8.5, -1.5, 0), Vector(10, -1.5, 0)), False)
sketch7.addGeometry(Part.ArcOfCircle(Part.Circle(Vector(10, 0, 0), Vector(0, 0, 1), 1.5), math.radians(-90), math.radians(90)), False)
sketch7.addGeometry(Part.LineSegment(Vector(10, 1.5, 0), Vector(8.5, 1.5, 0)), False)
sketch7.addGeometry(Part.LineSegment(Vector(8.5, 1.5, 0), Vector(8.5, 8.5, 0)), False)
sketch7.addGeometry(Part.LineSegment(Vector(8.5, 8.5, 0), Vector(-8.5, 8.5, 0)), False)
sketch7.addGeometry(Part.LineSegment(Vector(-8.5, 8.5, 0), Vector(-8.5, 1.5, 0)), False)
sketch7.addGeometry(Part.LineSegment(Vector(-8.5, 1.5, 0), Vector(-10, 1.5, 0)), False)
sketch7.addGeometry(Part.ArcOfCircle(Part.Circle(Vector(-10, 0, 0), Vector(0, 0, 1), 1.5), math.radians(90), math.radians(270)), False)
sketch7.addGeometry(Part.LineSegment(Vector(-10, -1.5, 0), Vector(-8.5, -1.5, 0)), False)
sketch7.addConstraint(Sketcher.Constraint("Coincident", 0, 2, 1, 1))
sketch7.addConstraint(Sketcher.Constraint("Coincident", 1, 2, 2, 1))
sketch7.addConstraint(Sketcher.Constraint("Coincident", 2, 2, 3, 1))
sketch7.addConstraint(Sketcher.Constraint("Tangent", 3, 2, 4, 1))
sketch7.addConstraint(Sketcher.Constraint("Tangent", 4, 2, 5, 1))
sketch7.addConstraint(Sketcher.Constraint("Coincident", 5, 2, 6, 1))
sketch7.addConstraint(Sketcher.Constraint("Coincident", 6, 2, 7, 1))
sketch7.addConstraint(Sketcher.Constraint("Coincident", 7, 2, 8, 1))
sketch7.addConstraint(Sketcher.Constraint("Coincident", 8, 2, 9, 1))
sketch7.addConstraint(Sketcher.Constraint("Tangent", 9, 2, 10, 1))
sketch7.addConstraint(Sketcher.Constraint("Tangent", 10, 2, 11, 1))
sketch7.addConstraint(Sketcher.Constraint("Coincident", 11, 2, 0, 1))
sketch7.addConstraint(Sketcher.Constraint("Vertical", 0))
sketch7.addConstraint(Sketcher.Constraint("Horizontal", 1))
sketch7.addConstraint(Sketcher.Constraint("Vertical", 2))
sketch7.addConstraint(Sketcher.Constraint("Horizontal", 3))
sketch7.addConstraint(Sketcher.Constraint("Horizontal", 5))
sketch7.addConstraint(Sketcher.Constraint("Vertical", 6))
sketch7.addConstraint(Sketcher.Constraint("Horizontal", 7))
sketch7.addConstraint(Sketcher.Constraint("Vertical", 8))
sketch7.addConstraint(Sketcher.Constraint("Horizontal", 9))
sketch7.addConstraint(Sketcher.Constraint("Horizontal", 11))
sketch7.addConstraint(Sketcher.Constraint("Equal", 4, 10))
sketch7.addConstraint(Sketcher.Constraint("Symmetric", 4, 3, 10, 3, -1, 1))
sketch7.addConstraint(Sketcher.Constraint("Symmetric", 0, 2, 6, 2, -1, 1))
sketch7.addConstraint(Sketcher.Constraint("Symmetric", 5, 2, 8, 2, -2))
sketch7.addConstraint(Sketcher.Constraint("Vertical", 2, 2, 5, 2))
sketch7.addConstraint(Sketcher.Constraint("Radius", 4, Q("1.5 mm")))
sketch7.addConstraint(Sketcher.Constraint("DistanceX", 1, 1, 1, 2, Q("17 mm")))
sketch7.addConstraint(Sketcher.Constraint("DistanceY", 0, 2, 0, 1, Q("7 mm")))
sketch7.addConstraint(Sketcher.Constraint("DistanceX", 3, 1, 3, 2, Q("1.5 mm")))
pad6 = body2.newObject("PartDesign::Pad", "Pad005")
pad6.Profile = sketch7
pad6.Length = 1.5
body3 = doc.addObject("PartDesign::Body", "Body002")
body3.AllowCompound = True

sketch8 = body3.newObject("Sketcher::SketchObject", "Sketch007")
sketch8.AttachmentSupport = (doc.getObject("XZ_Plane002"), [""])
sketch8.MapMode = "FlatFace"
sketch8.AttachmentOffset = App.Placement(Vector(0, 0, -8), App.Rotation())
sketch8.addGeometry(Part.Circle(Vector(-10, 0, 0), Vector(0, 0, 1), 1), False)
sketch8.addGeometry(Part.Circle(Vector(10, 0, 0), Vector(0, 0, 1), 1), False)
sketch8.addConstraint(Sketcher.Constraint("Equal", 0, 1))
sketch8.addConstraint(Sketcher.Constraint("Symmetric", 0, 3, 1, 3, -1, 1))
sketch8.addConstraint(Sketcher.Constraint("PointOnObject", 0, 3, -1))
sketch8.addConstraint(Sketcher.Constraint("Diameter", 0, Q("2 mm")))
sketch8.addConstraint(Sketcher.Constraint("DistanceX", 0, 3, -1, 1, Q("10 mm")))
pad7 = body3.newObject("PartDesign::Pad", "Pad006")
pad7.Profile = sketch8
pad7.Length = 24.077752
doc.recompute()

body4 = doc.addObject("PartDesign::Body", "Body003")
body4.BaseFeature = body3
boolean = body.newObject("PartDesign::Boolean", "Boolean")
boolean.Type = "Cut"
boolean.addObjects([body4])
doc.recompute()

boolean2 = body2.newObject("PartDesign::Boolean", "Boolean001")
boolean2.Type = "Cut"
boolean2.addObjects([body3])

doc.recompute()
